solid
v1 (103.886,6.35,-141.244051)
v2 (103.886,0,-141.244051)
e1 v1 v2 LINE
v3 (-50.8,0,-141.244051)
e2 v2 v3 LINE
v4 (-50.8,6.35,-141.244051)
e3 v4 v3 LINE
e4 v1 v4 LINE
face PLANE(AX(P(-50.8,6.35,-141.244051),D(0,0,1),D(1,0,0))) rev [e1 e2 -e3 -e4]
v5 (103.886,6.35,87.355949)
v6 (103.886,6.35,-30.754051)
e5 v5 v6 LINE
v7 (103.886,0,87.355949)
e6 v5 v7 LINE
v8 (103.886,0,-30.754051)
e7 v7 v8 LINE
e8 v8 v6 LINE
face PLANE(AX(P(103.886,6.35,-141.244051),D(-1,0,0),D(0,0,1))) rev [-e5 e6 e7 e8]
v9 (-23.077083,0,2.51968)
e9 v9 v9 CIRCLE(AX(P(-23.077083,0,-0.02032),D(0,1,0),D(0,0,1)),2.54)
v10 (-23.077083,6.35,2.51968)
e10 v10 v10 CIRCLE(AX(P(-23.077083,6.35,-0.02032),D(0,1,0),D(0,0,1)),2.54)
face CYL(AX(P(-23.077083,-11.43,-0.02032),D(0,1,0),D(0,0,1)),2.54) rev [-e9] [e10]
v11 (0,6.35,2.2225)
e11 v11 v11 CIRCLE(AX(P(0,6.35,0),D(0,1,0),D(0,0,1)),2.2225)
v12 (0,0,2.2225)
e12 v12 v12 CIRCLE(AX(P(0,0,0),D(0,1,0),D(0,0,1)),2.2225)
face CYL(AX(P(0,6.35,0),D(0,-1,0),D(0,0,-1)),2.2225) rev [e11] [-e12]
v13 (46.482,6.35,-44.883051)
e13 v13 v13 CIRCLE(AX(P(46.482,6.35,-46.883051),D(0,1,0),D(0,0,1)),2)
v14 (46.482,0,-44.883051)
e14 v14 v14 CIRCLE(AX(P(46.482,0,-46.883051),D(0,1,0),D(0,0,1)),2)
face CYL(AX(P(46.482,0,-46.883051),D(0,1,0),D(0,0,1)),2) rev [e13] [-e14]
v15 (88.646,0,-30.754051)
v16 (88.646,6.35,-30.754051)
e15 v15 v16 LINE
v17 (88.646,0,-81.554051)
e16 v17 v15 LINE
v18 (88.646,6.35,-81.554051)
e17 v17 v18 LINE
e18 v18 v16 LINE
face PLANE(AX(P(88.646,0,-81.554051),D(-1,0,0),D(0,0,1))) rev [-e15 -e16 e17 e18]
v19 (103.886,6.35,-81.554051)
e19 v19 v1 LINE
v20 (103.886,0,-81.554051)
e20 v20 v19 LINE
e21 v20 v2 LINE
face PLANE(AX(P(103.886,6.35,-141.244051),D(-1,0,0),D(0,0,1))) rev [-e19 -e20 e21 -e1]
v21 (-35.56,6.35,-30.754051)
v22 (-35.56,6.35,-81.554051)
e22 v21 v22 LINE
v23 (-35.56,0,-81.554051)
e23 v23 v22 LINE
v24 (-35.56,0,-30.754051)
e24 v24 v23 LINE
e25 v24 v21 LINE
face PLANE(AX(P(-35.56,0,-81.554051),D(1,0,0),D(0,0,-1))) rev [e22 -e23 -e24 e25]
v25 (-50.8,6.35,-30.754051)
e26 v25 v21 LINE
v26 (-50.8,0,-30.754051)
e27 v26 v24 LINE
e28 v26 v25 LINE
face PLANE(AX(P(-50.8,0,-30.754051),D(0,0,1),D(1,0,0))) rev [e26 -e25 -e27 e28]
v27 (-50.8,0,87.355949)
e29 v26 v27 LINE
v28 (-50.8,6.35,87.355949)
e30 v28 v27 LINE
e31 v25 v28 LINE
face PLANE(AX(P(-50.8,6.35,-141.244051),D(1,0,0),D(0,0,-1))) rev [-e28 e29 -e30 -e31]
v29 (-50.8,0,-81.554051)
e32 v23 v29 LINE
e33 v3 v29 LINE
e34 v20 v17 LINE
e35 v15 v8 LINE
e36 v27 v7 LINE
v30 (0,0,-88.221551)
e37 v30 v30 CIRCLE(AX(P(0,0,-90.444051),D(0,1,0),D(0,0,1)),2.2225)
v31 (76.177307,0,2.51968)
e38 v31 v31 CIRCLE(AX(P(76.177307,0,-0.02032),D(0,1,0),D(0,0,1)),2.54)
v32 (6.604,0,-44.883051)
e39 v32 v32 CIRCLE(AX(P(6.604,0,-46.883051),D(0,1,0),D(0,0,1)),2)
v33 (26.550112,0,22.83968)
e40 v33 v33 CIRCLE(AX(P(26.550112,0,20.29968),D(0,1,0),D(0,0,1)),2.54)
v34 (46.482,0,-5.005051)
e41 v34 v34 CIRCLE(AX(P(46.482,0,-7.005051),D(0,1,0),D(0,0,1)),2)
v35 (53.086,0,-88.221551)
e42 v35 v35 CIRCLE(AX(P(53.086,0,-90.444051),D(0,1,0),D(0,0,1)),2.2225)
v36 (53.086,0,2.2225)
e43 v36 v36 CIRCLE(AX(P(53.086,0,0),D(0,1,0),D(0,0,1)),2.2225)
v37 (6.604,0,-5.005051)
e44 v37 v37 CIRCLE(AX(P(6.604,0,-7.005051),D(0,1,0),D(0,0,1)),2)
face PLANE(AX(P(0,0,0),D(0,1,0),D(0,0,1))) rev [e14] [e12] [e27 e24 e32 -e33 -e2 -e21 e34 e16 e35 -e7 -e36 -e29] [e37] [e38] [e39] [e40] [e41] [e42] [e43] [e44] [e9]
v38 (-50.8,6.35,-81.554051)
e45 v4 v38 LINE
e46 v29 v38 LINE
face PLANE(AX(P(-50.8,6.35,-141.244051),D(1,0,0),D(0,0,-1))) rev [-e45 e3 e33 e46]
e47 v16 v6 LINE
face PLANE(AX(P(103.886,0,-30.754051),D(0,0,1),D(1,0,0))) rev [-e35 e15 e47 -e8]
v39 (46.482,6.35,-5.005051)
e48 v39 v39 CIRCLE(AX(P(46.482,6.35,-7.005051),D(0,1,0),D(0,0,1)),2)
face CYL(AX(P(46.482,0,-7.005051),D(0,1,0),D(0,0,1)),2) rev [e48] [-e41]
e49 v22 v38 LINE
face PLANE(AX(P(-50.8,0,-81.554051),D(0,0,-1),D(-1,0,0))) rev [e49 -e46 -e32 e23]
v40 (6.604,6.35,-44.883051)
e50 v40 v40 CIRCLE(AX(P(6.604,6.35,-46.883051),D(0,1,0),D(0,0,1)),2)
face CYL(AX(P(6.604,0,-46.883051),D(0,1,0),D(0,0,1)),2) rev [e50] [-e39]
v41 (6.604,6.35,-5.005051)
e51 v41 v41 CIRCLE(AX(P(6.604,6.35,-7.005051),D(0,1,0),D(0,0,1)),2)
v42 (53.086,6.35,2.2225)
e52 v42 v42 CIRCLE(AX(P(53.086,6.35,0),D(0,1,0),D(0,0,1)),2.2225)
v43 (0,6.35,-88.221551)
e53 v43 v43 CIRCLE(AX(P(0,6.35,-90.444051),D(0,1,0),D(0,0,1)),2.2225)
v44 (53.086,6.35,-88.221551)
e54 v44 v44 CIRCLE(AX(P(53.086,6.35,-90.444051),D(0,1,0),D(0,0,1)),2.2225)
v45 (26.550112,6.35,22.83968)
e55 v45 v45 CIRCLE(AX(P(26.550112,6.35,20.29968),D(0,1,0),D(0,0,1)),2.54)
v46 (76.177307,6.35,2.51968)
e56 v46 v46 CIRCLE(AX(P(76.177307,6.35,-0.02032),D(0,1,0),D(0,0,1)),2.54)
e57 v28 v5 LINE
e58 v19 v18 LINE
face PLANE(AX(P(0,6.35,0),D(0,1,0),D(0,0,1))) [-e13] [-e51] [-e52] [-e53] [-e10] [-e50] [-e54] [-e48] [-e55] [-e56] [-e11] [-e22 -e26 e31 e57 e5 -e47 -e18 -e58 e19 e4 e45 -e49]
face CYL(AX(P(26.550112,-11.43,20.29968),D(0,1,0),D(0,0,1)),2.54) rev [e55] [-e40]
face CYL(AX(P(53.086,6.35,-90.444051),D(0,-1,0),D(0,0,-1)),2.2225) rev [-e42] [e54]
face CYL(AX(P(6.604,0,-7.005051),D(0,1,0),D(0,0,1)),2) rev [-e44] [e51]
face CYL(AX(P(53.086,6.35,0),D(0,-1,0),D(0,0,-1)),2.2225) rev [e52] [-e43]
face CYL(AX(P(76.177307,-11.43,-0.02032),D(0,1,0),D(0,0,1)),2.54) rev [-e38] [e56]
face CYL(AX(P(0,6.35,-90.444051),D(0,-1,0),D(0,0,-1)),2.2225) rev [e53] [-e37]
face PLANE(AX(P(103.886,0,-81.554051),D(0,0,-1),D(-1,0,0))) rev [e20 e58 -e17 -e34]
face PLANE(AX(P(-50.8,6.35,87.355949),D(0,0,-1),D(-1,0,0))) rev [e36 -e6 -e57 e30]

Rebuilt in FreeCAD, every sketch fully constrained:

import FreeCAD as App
import Part
import Sketcher
Q = App.Units.Quantity

doc = App.newDocument("Part")
body = doc.addObject("PartDesign::Body", "Body")

# Sketch on XZ plane
sketch1 = body.newObject("Sketcher::SketchObject", "Sketch")
sketch1.AttachmentSupport = (doc.getObject("XZ_Plane"), [""])
sketch1.MapMode = "FlatFace"
sketch1.addGeometry([
    Part.LineSegment(App.Vector(-51, -141, 0), App.Vector(-51, 87, 0)),
    Part.LineSegment(App.Vector(-51, 87, 0), App.Vector(104, 87, 0)),
    Part.LineSegment(App.Vector(104, 87, 0), App.Vector(104, -141, 0)),
    Part.LineSegment(App.Vector(104, -141, 0), App.Vector(-51, -141, 0)),
], False)
sketch1.addConstraint([
    Sketcher.Constraint("Coincident", 0, 2, 1, 1),
    Sketcher.Constraint("Coincident", 1, 2, 2, 1),
    Sketcher.Constraint("Coincident", 2, 2, 3, 1),
    Sketcher.Constraint("Coincident", 3, 2, 0, 1),
    Sketcher.Constraint("Vertical", 0),
    Sketcher.Constraint("Horizontal", 1),
    Sketcher.Constraint("Vertical", 2),
    Sketcher.Constraint("Horizontal", 3),
    Sketcher.Constraint("DistanceY", 0, 1, 0, 2, Q("9 in")),
    Sketcher.Constraint("DistanceX", 0, 2, -1, 1, Q("2 in")),
    Sketcher.Constraint("DistanceX", 1, 1, 1, 2, Q("6.09 in")),
    Sketcher.Constraint("DistanceY", -1, 1, 0, 2, Q("87.355949 mm")),
])
pad1 = body.newObject("PartDesign::Pad", "Pad")
pad1.Profile = sketch1
pad1.Length = Q("0.25 in")
pad1.Reversed = True

# Sketch on XZ plane
sketch2 = body.newObject("Sketcher::SketchObject", "Sketch001")
sketch2.AttachmentSupport = (doc.getObject("XZ_Plane"), [""])
sketch2.MapMode = "FlatFace"
sketch2.addGeometry([
    Part.Circle(App.Vector(0, -90.4, 0), App.Vector(0, 0, 1), 2.2),
    Part.Circle(App.Vector(53.1, -90.4, 0), App.Vector(0, 0, 1), 2.2),
    Part.Circle(App.Vector(0, 0, 0), App.Vector(0, 0, 1), 2.2),
    Part.Circle(App.Vector(53.1, 0, 0), App.Vector(0, 0, 1), 2.2),
], False)
sketch2.addConstraint([
    Sketcher.Constraint("Coincident", 2, 3, -1, 1),
    Sketcher.Constraint("Equal", 0, 1),
    Sketcher.Constraint("Equal", 1, 2),
    Sketcher.Constraint("Equal", 2, 3),
    Sketcher.Constraint("PointOnObject", 0, 3, -2),
    Sketcher.Constraint("PointOnObject", 3, 3, -1),
    Sketcher.Constraint("Horizontal", 0, 3, 1, 3),
    Sketcher.Constraint("Vertical", 1, 3, 3, 3),
    Sketcher.Constraint("Diameter", 0, Q("0.175 in")),
    Sketcher.Constraint("DistanceX", -1, 1, 1, 3, Q("2.09 in")),
    Sketcher.Constraint("DistanceY", 0, 3, -1, 1, Q("90.444051 mm")),
])
pocket1 = body.newObject("PartDesign::Pocket", "Pocket")
pocket1.Profile = sketch2
pocket1.Length = Q("0.25 in")

# Sketch on XZ plane
sketch3 = body.newObject("Sketcher::SketchObject", "Sketch002")
sketch3.AttachmentSupport = (doc.getObject("XZ_Plane"), [""])
sketch3.MapMode = "FlatFace"
sketch3.AttachmentOffset = App.Placement(App.Vector(0, 0, -0.25 * 25.4), App.Rotation())
sketch3.addGeometry([
    Part.LineSegment(App.Vector(89, -82, 0), App.Vector(89, -31, 0)),  # 0
    Part.LineSegment(App.Vector(89, -31, 0), App.Vector(104, -31, 0)),  # 1
    Part.LineSegment(App.Vector(104, -31, 0), App.Vector(104, -82, 0)),  # 2
    Part.LineSegment(App.Vector(104, -82, 0), App.Vector(89, -82, 0)),  # 3
    Part.LineSegment(App.Vector(-51, -82, 0), App.Vector(-51, -31, 0)),  # 4
    Part.LineSegment(App.Vector(-51, -31, 0), App.Vector(-36, -31, 0)),  # 5
    Part.LineSegment(App.Vector(-36, -31, 0), App.Vector(-36, -82, 0)),  # 6
    Part.LineSegment(App.Vector(-36, -82, 0), App.Vector(-51, -82, 0)),  # 7
], False)
sketch3.addConstraint([
    Sketcher.Constraint("Coincident", 0, 2, 1, 1),
    Sketcher.Constraint("Coincident", 1, 2, 2, 1),
    Sketcher.Constraint("Coincident", 2, 2, 3, 1),
    Sketcher.Constraint("Coincident", 3, 2, 0, 1),
    Sketcher.Constraint("Coincident", 4, 2, 5, 1),
    Sketcher.Constraint("Coincident", 5, 2, 6, 1),
    Sketcher.Constraint("Coincident", 6, 2, 7, 1),
    Sketcher.Constraint("Coincident", 7, 2, 4, 1),
    Sketcher.Constraint("Vertical", 0),
    Sketcher.Constraint("Horizontal", 1),
    Sketcher.Constraint("Vertical", 2),
    Sketcher.Constraint("Horizontal", 3),
    Sketcher.Constraint("Vertical", 4),
    Sketcher.Constraint("Horizontal", 5),
    Sketcher.Constraint("Vertical", 6),
    Sketcher.Constraint("Horizontal", 7),
    Sketcher.Constraint("Horizontal", 1, 2, 4, 2),
    Sketcher.Constraint("Horizontal", 3, 2, 6, 2),
    Sketcher.Constraint("Equal", 3, 5),
    Sketcher.Constraint("DistanceY", 0, 1, 0, 2, Q("2 in")),
    Sketcher.Constraint("DistanceX", 1, 1, 1, 2, Q("0.6 in")),
    Sketcher.Constraint("DistanceX", 4, 2, -1, 1, Q("2 in")),
    Sketcher.Constraint("DistanceX", -1, 1, 0, 2, Q("3.49 in")),
    Sketcher.Constraint("DistanceY", 0, 2, -1, 1, Q("30.754051 mm")),
])
pocket2 = body.newObject("PartDesign::Pocket", "Pocket001")
pocket2.Profile = sketch3
pocket2.Length = Q("0.25 in")
pocket2.Reversed = True

# Sketch on XZ plane
sketch4 = body.newObject("Sketcher::SketchObject", "Sketch003")
sketch4.AttachmentSupport = (doc.getObject("XZ_Plane"), [""])
sketch4.MapMode = "FlatFace"
sketch4.AttachmentOffset = App.Placement(App.Vector(0, 0, -0.25 * 25.4), App.Rotation())
sketch4.addGeometry([
    Part.Circle(App.Vector(26.6, 20.3, 0), App.Vector(0, 0, 1), 2.5),
    Part.Circle(App.Vector(-23.1, 0, 0), App.Vector(0, 0, 1), 2.5),
    Part.Circle(App.Vector(76.2, 0, 0), App.Vector(0, 0, 1), 2.5),
], False)
sketch4.addConstraint([
    Sketcher.Constraint("Equal", 0, 1),
    Sketcher.Constraint("Equal", 1, 2),
    Sketcher.Constraint("Horizontal", 1, 3, 2, 3),
    Sketcher.Constraint("Diameter", 0, Q("0.2 in")),
    Sketcher.Constraint("DistanceY", 1, 3, 0, 3, Q("0.8 in")),
    Sketcher.Constraint("DistanceY", -1, 1, 0, 3, Q("0.7992 in")),
    Sketcher.Constraint("DistanceX", -1, 1, 0, 3, Q("26.550112 mm")),
    Sketcher.Constraint("DistanceX", 1, 3, 2, 3, Q("99.25439 mm")),
    Sketcher.Constraint("DistanceX", 1, 3, -1, 1, Q("23.077083 mm")),
])
pocket3 = body.newObject("PartDesign::Pocket", "Pocket002")
pocket3.Profile = sketch4
pocket3.Length = Q("0.7 in")
pocket3.Reversed = True

# Sketch on XZ plane
sketch5 = body.newObject("Sketcher::SketchObject", "Sketch004")
sketch5.AttachmentSupport = (doc.getObject("XZ_Plane"), [""])
sketch5.MapMode = "FlatFace"
sketch5.AttachmentOffset = App.Placement(App.Vector(0, 0, -0.25 * 25.4), App.Rotation())
sketch5.addGeometry([
    Part.Circle(App.Vector(6.6, -7, 0), App.Vector(0, 0, 1), 2),
    Part.Circle(App.Vector(46.5, -7, 0), App.Vector(0, 0, 1), 2),
    Part.Circle(App.Vector(46.5, -46.9, 0), App.Vector(0, 0, 1), 2),
    Part.Circle(App.Vector(6.6, -46.9, 0), App.Vector(0, 0, 1), 2),
], False)
sketch5.addConstraint([
    Sketcher.Constraint("Equal", 0, 1),
    Sketcher.Constraint("Equal", 1, 2),
    Sketcher.Constraint("Equal", 2, 3),
    Sketcher.Constraint("Horizontal", 0, 3, 1, 3),
    Sketcher.Constraint("Horizontal", 2, 3, 3, 3),
    Sketcher.Constraint("Vertical", 1, 3, 2, 3),
    Sketcher.Constraint("Vertical", 0, 3, 3, 3),
    Sketcher.Constraint("Diameter", 0, Q("4 mm")),
    Sketcher.Constraint("DistanceX", -1, 1, 0, 3, Q("0.26 in")),
    Sketcher.Constraint("DistanceX", -1, 1, 1, 3, Q("1.83 in")),
    Sketcher.Constraint("DistanceY", 2, 3, 1, 3, Q("1.57 in")),
    Sketcher.Constraint("DistanceY", 0, 3, -1, 1, Q("7.005051 mm")),
])
pocket4 = body.newObject("PartDesign::Pocket", "Pocket003")
pocket4.Profile = sketch5
pocket4.Type = "ThroughAll"
pocket4.Reversed = True

doc.recompute()
